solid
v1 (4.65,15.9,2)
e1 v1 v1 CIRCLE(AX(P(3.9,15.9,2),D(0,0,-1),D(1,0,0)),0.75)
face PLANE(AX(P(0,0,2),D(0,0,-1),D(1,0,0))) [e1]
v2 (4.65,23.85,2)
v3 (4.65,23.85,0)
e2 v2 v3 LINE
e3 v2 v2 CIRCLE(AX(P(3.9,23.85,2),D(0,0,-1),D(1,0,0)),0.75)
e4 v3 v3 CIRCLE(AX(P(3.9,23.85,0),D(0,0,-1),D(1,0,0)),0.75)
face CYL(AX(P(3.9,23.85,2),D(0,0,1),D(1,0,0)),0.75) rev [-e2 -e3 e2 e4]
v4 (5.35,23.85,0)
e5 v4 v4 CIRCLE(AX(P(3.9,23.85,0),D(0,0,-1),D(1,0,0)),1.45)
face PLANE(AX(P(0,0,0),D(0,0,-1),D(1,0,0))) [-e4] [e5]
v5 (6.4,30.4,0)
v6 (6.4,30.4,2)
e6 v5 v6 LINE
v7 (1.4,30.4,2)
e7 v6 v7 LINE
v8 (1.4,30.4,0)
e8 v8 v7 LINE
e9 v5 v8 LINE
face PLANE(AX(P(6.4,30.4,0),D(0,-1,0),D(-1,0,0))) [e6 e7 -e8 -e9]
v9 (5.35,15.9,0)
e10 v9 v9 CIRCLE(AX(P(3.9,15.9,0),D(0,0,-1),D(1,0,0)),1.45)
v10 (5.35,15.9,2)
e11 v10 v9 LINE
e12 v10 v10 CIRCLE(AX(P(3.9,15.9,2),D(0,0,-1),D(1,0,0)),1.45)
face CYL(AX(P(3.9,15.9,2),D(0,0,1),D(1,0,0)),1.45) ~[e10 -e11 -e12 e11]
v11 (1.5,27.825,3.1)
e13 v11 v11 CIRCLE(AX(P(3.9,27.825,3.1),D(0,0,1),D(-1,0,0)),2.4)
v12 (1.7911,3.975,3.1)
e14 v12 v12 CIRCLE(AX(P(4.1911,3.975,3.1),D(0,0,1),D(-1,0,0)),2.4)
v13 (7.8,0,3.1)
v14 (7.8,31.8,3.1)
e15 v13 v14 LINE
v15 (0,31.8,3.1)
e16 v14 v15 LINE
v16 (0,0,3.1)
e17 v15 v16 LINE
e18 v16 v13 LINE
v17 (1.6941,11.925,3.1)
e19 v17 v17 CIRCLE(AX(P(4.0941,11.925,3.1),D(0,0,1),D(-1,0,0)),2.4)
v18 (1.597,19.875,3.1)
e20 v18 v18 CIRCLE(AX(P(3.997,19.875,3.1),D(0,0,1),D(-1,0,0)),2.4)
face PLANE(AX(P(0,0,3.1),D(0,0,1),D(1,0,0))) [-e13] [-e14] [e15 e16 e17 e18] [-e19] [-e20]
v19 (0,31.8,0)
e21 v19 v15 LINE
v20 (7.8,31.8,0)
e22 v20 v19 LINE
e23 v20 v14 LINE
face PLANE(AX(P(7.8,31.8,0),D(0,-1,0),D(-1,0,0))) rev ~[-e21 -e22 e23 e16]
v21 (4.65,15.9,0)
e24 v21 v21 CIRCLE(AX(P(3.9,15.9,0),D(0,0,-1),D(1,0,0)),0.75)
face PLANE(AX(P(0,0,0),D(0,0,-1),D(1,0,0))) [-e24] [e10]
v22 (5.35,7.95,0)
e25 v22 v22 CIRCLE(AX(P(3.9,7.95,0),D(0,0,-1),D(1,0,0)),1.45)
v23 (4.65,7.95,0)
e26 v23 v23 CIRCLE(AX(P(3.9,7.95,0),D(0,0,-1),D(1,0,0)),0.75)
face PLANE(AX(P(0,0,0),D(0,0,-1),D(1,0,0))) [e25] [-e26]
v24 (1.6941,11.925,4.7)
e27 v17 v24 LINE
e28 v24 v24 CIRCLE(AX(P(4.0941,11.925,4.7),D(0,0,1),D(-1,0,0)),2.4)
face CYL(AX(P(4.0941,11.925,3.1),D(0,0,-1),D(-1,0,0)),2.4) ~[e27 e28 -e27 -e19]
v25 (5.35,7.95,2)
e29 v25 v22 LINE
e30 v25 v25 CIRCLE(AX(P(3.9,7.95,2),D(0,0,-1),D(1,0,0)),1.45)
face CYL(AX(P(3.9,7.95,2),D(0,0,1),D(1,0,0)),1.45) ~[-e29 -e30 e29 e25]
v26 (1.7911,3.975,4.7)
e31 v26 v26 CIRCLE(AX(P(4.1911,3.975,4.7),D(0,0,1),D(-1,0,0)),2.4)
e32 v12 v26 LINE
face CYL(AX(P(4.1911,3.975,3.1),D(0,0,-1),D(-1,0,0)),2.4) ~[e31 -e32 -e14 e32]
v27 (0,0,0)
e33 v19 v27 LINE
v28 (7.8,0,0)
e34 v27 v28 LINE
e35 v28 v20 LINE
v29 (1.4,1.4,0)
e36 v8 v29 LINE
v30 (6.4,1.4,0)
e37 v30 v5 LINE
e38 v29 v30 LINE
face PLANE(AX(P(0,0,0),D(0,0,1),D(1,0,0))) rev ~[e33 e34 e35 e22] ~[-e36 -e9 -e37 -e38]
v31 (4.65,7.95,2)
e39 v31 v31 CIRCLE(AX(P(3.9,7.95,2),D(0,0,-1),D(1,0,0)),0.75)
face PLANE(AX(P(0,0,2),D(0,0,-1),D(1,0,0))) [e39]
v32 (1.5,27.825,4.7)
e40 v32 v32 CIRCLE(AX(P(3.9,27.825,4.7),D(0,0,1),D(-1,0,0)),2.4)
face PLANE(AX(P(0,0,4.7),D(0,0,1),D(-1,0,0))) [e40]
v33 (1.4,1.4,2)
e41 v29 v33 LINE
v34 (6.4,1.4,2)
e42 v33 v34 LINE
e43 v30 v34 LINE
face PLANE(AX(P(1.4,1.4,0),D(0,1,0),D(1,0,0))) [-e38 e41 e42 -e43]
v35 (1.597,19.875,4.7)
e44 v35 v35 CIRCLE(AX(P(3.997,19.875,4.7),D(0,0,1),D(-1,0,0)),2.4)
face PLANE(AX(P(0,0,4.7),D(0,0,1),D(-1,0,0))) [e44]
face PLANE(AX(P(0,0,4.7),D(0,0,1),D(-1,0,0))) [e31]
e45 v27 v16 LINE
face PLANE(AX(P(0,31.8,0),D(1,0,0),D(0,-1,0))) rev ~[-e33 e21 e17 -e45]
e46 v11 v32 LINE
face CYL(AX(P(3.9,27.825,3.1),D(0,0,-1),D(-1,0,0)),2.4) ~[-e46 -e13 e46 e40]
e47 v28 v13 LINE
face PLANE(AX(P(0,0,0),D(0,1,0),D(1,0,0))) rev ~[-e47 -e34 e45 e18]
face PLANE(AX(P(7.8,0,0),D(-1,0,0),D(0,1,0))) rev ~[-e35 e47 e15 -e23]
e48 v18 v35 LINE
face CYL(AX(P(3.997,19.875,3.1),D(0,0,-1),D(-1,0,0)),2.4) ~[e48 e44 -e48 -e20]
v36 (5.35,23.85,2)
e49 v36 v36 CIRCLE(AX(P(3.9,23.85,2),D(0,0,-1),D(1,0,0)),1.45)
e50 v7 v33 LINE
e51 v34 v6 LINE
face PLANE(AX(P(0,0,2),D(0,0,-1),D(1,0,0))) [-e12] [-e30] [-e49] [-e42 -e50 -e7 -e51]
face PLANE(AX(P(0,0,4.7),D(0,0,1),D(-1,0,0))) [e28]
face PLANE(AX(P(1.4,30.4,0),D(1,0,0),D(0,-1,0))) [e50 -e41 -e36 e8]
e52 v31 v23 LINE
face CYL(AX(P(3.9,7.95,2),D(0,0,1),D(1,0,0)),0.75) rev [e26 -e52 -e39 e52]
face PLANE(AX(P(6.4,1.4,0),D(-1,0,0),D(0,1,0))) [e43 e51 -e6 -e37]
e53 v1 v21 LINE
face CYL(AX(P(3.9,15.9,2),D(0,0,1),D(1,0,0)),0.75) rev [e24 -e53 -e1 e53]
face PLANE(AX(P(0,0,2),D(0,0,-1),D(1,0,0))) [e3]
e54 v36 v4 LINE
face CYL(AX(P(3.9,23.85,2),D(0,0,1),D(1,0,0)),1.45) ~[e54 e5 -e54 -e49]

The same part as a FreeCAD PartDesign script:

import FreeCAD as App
import Part
import Sketcher
from FreeCAD import Vector

doc = App.newDocument("Part")
body = doc.addObject("PartDesign::Body", "Body")

# Sketch on XY plane
sketch1 = body.newObject("Sketcher::SketchObject", "Sketch")
sketch1.AttachmentSupport = (doc.getObject("XY_Plane"), [""])
sketch1.MapMode = "FlatFace"
sketch1.addGeometry([
    Part.LineSegment(Vector(0, 32, 0), Vector(0, 0, 0)),
    Part.LineSegment(Vector(0, 0, 0), Vector(8, 0, 0)),
    Part.LineSegment(Vector(8, 0, 0), Vector(8, 32, 0)),
    Part.LineSegment(Vector(8, 32, 0), Vector(0, 32, 0)),
], False)
sketch1.addConstraint([
    Sketcher.Constraint("Coincident", 0, 2, 1, 1),
    Sketcher.Constraint("Coincident", 1, 2, 2, 1),
    Sketcher.Constraint("Coincident", 2, 2, 3, 1),
    Sketcher.Constraint("Coincident", 3, 2, 0, 1),
    Sketcher.Constraint("Vertical", 0),
    Sketcher.Constraint("Horizontal", 1),
    Sketcher.Constraint("Vertical", 2),
    Sketcher.Constraint("Horizontal", 3),
    Sketcher.Constraint("Coincident", 0, 2, -1, 1),
    Sketcher.Constraint("DistanceX", 1, 1, 1, 2, 7.8),
    Sketcher.Constraint("DistanceY", 0, 2, 0, 1, 31.8),
])
pad1 = body.newObject("PartDesign::Pad", "Pad")
pad1.Profile = sketch1
pad1.Length = 3.1

# Sketch on XY plane
sketch2 = body.newObject("Sketcher::SketchObject", "Sketch001")
sketch2.AttachmentSupport = (doc.getObject("XY_Plane"), [""])
sketch2.MapMode = "FlatFace"
sketch2.addGeometry([
    Part.LineSegment(Vector(6, 1, 0), Vector(1, 1, 0)),
    Part.LineSegment(Vector(1, 1, 0), Vector(1, 30, 0)),
    Part.LineSegment(Vector(1, 30, 0), Vector(6, 30, 0)),
    Part.LineSegment(Vector(6, 30, 0), Vector(6, 1, 0)),
], False)
sketch2.addConstraint([
    Sketcher.Constraint("Coincident", 0, 2, 1, 1),
    Sketcher.Constraint("Coincident", 1, 2, 2, 1),
    Sketcher.Constraint("Coincident", 2, 2, 3, 1),
    Sketcher.Constraint("Coincident", 3, 2, 0, 1),
    Sketcher.Constraint("Horizontal", 0),
    Sketcher.Constraint("Vertical", 1),
    Sketcher.Constraint("Horizontal", 2),
    Sketcher.Constraint("Vertical", 3),
    Sketcher.Constraint("DistanceX", -1, 1, 0, 2, 1.4),
    Sketcher.Constraint("DistanceY", -1, 1, 0, 2, 1.4),
    Sketcher.Constraint("DistanceX", 0, 2, 0, 1, 5.0),
    Sketcher.Constraint("DistanceY", 1, 1, 1, 2, 29.0),
])
pocket1 = body.newObject("PartDesign::Pocket", "Pocket")
pocket1.Profile = sketch2
pocket1.Length = 2
pocket1.Reversed = True

# Sketch on XY plane
sketch3 = body.newObject("Sketcher::SketchObject", "Sketch002")
sketch3.AttachmentSupport = (doc.getObject("XY_Plane"), [""])
sketch3.MapMode = "FlatFace"
sketch3.AttachmentOffset = App.Placement(Vector(0, 0, 3.1), App.Rotation())
sketch3.addGeometry([
    Part.Circle(Vector(3.9, 27.8, 0), Vector(0, 0, 1), 2.4),
    Part.Circle(Vector(4, 19.9, 0), Vector(0, 0, 1), 2.4),
    Part.Circle(Vector(4.1, 11.9, 0), Vector(0, 0, 1), 2.4),
    Part.Circle(Vector(4.2, 4, 0), Vector(0, 0, 1), 2.4),
], False)
sketch3.addConstraint([
    Sketcher.Constraint("Equal", 0, 1),
    Sketcher.Constraint("Equal", 1, 2),
    Sketcher.Constraint("Equal", 2, 3),
    Sketcher.Constraint("Diameter", 0, 4.8),
    Sketcher.Constraint("DistanceX", -1, 1, 0, 3, 3.9),
    Sketcher.Constraint("DistanceY", 1, 3, 0, 3, 7.95),
    Sketcher.Constraint("DistanceY", 2, 3, 1, 3, 7.95),
    Sketcher.Constraint("DistanceY", 3, 3, 2, 3, 7.95),
    Sketcher.Constraint("DistanceY", -1, 1, 3, 3, 3.975),
    Sketcher.Constraint("DistanceX", -1, 1, 1, 3, 3.997),
    Sketcher.Constraint("DistanceX", -1, 1, 2, 3, 4.094),
    Sketcher.Constraint("DistanceX", -1, 1, 3, 3, 4.191),
])
pad2 = body.newObject("PartDesign::Pad", "Pad001")
pad2.Profile = sketch3
pad2.Length = 1.6

# Sketch on XY plane
sketch4 = body.newObject("Sketcher::SketchObject", "Sketch003")
sketch4.AttachmentSupport = (doc.getObject("XY_Plane"), [""])
sketch4.MapMode = "FlatFace"
sketch4.AttachmentOffset = App.Placement(Vector(0, 0, 2), App.Rotation())
sketch4.addGeometry([
    Part.Circle(Vector(3.9, 8, 0), Vector(0, 0, 1), 1.4),  # 0
    Part.Circle(Vector(3.9, 8, 0), Vector(0, 0, 1), 0.8),  # 1
    Part.Circle(Vector(3.9, 15.9, 0), Vector(0, 0, 1), 1.4),  # 2
    Part.Circle(Vector(3.9, 15.9, 0), Vector(0, 0, 1), 0.8),  # 3
    Part.Circle(Vector(3.9, 23.9, 0), Vector(0, 0, 1), 1.4),  # 4
    Part.Circle(Vector(3.9, 23.9, 0), Vector(0, 0, 1), 0.8),  # 5
], False)
sketch4.addConstraint([
    Sketcher.Constraint("Coincident", 1, 3, 0, 3),
    Sketcher.Constraint("Coincident", 3, 3, 2, 3),
    Sketcher.Constraint("Coincident", 5, 3, 4, 3),
    Sketcher.Constraint("Equal", 0, 2),
    Sketcher.Constraint("Equal", 1, 3),
    Sketcher.Constraint("Equal", 2, 4),
    Sketcher.Constraint("Equal", 3, 5),
    Sketcher.Constraint("Vertical", 1, 3, 2, 3),
    Sketcher.Constraint("Vertical", 3, 3, 4, 3),
    Sketcher.Constraint("Diameter", 0, 2.9),
    Sketcher.Constraint("Diameter", 1, 1.5),
    Sketcher.Constraint("DistanceX", -1, 1, 0, 3, 3.9),
    Sketcher.Constraint("DistanceY", -1, 1, 0, 3, 7.95),
    Sketcher.Constraint("DistanceY", 0, 3, 2, 3, 7.95),
    Sketcher.Constraint("DistanceY", 2, 3, 4, 3, 7.95),
])
pad3 = body.newObject("PartDesign::Pad", "Pad002")
pad3.Profile = sketch4
pad3.Length = 2
pad3.Reversed = True

doc.recompute()
